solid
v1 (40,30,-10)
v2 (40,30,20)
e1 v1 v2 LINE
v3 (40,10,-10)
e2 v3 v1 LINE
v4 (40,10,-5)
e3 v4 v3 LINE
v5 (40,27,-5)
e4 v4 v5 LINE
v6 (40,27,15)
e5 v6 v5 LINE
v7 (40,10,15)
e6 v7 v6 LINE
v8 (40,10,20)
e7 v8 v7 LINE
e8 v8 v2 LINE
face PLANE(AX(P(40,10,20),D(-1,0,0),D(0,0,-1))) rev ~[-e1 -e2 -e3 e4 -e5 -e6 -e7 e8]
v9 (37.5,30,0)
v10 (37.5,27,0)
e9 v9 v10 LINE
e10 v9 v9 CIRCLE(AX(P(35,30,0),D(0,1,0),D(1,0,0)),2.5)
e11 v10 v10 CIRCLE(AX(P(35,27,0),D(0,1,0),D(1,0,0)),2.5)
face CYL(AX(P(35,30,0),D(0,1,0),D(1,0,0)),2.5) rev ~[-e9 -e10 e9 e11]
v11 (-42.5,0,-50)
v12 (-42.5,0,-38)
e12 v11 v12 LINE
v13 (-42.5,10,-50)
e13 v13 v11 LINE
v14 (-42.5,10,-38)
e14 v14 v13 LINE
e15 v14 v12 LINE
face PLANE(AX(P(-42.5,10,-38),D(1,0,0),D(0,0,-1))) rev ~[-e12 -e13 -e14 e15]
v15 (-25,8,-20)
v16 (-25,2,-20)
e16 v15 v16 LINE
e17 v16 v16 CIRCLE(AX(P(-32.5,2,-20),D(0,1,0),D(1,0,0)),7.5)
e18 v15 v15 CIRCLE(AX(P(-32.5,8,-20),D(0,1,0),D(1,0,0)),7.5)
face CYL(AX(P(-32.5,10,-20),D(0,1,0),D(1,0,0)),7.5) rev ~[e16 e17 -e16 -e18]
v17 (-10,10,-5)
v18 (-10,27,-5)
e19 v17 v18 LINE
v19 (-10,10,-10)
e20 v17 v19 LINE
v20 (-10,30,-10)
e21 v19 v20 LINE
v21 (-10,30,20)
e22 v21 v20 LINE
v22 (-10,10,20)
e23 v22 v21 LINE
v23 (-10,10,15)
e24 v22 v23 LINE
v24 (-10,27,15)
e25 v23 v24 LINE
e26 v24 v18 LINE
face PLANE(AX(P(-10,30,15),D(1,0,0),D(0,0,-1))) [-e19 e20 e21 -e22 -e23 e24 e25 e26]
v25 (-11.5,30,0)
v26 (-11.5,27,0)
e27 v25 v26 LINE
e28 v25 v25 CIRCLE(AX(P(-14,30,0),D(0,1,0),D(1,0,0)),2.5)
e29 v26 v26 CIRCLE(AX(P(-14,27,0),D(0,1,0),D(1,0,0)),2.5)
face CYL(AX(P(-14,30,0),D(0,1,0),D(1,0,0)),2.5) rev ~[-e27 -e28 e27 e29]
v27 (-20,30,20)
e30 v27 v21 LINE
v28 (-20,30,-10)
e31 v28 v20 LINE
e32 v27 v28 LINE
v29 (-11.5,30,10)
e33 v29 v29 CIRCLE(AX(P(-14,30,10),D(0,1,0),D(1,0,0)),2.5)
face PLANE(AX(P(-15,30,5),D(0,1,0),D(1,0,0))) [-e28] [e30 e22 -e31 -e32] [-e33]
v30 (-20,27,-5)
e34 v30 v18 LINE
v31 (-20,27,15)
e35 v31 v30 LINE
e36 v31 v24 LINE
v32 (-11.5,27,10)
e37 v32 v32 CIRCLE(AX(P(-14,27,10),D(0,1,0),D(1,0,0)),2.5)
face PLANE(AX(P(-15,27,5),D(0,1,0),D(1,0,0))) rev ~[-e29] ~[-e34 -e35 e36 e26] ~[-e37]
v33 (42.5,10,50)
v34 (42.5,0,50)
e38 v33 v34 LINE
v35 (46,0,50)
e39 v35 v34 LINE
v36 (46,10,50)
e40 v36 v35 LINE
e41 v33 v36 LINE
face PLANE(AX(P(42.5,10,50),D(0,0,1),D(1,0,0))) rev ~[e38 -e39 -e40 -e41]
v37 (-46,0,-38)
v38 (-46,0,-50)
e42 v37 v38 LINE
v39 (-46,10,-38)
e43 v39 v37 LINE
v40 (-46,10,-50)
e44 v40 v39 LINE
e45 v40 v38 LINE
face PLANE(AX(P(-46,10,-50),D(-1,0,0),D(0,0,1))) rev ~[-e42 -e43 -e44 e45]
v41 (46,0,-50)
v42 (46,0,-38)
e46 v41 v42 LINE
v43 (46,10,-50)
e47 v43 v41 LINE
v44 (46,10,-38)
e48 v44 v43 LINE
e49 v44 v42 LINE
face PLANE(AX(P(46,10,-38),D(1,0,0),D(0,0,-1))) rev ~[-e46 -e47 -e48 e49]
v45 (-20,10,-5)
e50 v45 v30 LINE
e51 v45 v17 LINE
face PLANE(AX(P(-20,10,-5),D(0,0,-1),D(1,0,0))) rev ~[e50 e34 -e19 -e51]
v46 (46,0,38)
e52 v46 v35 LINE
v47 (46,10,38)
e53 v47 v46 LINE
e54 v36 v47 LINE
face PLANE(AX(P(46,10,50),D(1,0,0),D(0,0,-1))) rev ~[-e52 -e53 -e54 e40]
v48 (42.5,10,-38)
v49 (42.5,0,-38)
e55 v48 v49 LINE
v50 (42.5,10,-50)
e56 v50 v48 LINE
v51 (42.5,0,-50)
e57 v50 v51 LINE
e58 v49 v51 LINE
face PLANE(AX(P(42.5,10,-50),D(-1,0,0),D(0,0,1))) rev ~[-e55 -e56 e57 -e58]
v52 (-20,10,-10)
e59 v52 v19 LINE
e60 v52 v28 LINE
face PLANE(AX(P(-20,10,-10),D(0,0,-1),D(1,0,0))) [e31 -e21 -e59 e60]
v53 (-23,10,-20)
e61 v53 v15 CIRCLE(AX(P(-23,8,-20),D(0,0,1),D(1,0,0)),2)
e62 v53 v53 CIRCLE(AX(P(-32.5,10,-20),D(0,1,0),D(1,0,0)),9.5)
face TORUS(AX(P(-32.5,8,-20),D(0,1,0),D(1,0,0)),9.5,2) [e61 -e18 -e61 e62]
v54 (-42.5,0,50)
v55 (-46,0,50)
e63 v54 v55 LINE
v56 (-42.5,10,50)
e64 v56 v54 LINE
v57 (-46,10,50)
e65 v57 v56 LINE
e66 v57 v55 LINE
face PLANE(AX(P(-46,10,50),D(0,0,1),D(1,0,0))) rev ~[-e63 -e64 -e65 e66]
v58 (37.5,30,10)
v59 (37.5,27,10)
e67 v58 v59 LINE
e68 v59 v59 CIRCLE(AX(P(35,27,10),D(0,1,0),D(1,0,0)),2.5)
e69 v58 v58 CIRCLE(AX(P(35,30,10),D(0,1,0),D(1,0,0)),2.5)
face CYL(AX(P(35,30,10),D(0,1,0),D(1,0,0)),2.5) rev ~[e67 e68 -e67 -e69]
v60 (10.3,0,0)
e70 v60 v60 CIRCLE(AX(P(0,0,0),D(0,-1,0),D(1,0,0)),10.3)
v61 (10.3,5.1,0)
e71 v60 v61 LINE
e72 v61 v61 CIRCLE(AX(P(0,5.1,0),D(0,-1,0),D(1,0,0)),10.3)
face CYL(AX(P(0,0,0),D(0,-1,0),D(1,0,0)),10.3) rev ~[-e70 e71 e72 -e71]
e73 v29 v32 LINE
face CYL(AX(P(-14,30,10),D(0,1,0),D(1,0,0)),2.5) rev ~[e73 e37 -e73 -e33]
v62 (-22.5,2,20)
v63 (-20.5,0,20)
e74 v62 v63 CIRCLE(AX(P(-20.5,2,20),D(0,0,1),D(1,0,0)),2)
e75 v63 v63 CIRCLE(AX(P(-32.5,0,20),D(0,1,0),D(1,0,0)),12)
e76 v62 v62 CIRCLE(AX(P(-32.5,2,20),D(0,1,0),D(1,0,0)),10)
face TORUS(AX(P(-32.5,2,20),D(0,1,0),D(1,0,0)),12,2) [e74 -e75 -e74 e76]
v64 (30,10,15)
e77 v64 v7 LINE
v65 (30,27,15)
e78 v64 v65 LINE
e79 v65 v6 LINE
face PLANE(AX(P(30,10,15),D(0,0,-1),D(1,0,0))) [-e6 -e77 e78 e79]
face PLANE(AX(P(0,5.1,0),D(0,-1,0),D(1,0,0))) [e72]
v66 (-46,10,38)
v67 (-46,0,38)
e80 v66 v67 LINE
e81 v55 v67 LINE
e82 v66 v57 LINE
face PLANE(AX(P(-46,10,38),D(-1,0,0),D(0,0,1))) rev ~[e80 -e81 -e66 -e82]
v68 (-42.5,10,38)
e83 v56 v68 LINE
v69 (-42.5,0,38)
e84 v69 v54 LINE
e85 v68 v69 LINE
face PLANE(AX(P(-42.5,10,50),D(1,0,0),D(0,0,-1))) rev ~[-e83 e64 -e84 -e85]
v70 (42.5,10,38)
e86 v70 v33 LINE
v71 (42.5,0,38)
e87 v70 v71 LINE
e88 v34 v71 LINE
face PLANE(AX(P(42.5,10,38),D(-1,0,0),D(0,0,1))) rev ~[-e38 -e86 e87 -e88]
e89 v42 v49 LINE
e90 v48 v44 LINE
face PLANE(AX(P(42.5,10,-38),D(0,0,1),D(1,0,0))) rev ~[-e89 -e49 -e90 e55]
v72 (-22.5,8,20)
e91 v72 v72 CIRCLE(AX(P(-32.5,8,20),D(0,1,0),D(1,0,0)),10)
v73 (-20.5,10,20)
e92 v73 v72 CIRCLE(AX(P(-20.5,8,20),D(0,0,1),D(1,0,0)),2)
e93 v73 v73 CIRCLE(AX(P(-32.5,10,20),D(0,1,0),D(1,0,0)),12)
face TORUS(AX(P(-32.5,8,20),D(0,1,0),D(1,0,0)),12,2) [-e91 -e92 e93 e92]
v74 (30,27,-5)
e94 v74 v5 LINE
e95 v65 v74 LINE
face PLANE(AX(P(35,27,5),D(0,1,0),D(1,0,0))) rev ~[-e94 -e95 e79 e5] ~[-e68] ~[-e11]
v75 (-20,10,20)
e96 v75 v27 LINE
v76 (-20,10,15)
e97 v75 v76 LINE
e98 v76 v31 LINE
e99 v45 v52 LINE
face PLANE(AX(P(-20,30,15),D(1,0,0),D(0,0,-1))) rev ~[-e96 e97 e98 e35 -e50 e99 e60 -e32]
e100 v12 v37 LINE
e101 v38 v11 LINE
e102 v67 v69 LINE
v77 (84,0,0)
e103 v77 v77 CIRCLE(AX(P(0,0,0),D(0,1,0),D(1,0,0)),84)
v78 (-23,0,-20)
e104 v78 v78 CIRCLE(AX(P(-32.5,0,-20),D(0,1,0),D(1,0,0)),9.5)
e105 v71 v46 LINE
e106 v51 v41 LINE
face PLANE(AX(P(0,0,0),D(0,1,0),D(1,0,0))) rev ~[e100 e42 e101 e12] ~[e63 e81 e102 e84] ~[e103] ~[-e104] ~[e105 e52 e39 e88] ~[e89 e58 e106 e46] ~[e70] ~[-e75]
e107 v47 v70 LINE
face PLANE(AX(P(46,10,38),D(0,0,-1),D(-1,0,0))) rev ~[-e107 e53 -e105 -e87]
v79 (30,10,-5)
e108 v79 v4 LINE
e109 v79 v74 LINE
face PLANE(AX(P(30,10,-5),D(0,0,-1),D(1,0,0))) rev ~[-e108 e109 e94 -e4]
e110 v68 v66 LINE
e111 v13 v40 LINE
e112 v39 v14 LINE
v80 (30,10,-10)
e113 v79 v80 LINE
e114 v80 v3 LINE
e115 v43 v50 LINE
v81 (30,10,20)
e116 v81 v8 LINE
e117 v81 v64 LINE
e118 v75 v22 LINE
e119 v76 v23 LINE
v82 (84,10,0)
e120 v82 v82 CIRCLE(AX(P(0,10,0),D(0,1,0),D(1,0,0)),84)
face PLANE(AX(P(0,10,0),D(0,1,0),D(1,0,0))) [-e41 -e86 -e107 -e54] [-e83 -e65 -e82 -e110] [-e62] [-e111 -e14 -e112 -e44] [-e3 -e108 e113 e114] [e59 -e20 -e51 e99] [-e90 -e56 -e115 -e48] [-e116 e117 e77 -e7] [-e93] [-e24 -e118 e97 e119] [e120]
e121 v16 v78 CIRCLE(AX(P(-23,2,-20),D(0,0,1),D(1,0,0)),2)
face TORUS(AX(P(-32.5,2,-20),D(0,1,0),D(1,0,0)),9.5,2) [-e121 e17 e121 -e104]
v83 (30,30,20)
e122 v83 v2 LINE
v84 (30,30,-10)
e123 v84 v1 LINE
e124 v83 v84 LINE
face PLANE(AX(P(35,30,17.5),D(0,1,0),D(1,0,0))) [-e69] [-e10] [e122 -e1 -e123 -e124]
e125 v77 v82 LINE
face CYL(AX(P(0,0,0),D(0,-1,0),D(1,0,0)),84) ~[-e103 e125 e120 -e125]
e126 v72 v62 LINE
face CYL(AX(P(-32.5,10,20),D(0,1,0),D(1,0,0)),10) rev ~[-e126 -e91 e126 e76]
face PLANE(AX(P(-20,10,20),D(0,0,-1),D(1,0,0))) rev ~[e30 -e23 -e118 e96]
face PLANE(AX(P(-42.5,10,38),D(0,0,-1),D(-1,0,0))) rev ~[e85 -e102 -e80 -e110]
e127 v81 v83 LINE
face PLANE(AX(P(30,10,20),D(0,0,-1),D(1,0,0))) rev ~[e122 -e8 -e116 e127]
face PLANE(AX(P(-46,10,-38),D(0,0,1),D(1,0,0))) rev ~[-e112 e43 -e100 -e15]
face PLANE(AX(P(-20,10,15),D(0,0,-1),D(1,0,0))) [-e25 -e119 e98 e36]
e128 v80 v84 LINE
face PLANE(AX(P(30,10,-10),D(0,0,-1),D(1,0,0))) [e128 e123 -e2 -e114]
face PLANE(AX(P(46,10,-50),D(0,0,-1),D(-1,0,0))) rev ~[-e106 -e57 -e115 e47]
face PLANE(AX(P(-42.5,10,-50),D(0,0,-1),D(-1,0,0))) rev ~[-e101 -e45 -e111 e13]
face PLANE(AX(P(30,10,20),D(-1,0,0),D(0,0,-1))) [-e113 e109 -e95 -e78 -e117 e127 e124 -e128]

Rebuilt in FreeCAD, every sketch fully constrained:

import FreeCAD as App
import Part
import Sketcher
Q = App.Units.Quantity


def edges_at(feature, points):
    """Names of the edges that pass closest to the given points."""
    edges = feature.Shape.Edges
    near = lambda p: min(range(len(edges)), key=lambda i: edges[i].distToShape(Part.Vertex(*p))[0])
    return sorted({f"Edge{near(p) + 1}" for p in points})


def add_polygon(sketch, points):
    """Adds a closed chain of lines whose ends are joined by coincident constraints."""
    first, n = sketch.GeometryCount, len(points)
    for a, b in zip(points, points[1:] + points[:1]):
        sketch.addGeometry(Part.LineSegment(App.Vector(*a, 0), App.Vector(*b, 0)), False)
    for i in range(n):
        sketch.addConstraint(Sketcher.Constraint("Coincident", first + i, 2, first + (i + 1) % n, 1))

doc = App.newDocument("Part")
body = doc.addObject("PartDesign::Body", "Body")

sketch1 = body.newObject("Sketcher::SketchObject", "Sketch")
sketch1.AttachmentSupport = (doc.getObject("XZ_Plane"), [""])
sketch1.MapMode = "FlatFace"
sketch1.addGeometry(Part.Circle(App.Vector(0, 0, 0), App.Vector(0, 0, 1), 84), False)
sketch1.addConstraint(Sketcher.Constraint("Coincident", 0, 3, -1, 1))
sketch1.addConstraint(Sketcher.Constraint("Diameter", 0, Q("168 mm")))
pad1 = body.newObject("PartDesign::Pad", "Pad")
pad1.Profile = sketch1
pad1.Length = 10
pad1.Reversed = True

sketch2 = body.newObject("Sketcher::SketchObject", "Sketch001")
sketch2.AttachmentSupport = (doc.getObject("XZ_Plane"), [""])
sketch2.MapMode = "FlatFace"
sketch2.AttachmentOffset = App.Placement(App.Vector(0, 0, -10), App.Rotation())
add_polygon(sketch2, [(-20, -10), (-20, -5), (-10, -5), (-10, -10)])
add_polygon(sketch2, [(-20, 15), (-20, 20), (-10, 20), (-10, 15)])
add_polygon(sketch2, [(30, 15), (30, 20), (40, 20), (40, 15)])
add_polygon(sketch2, [(30, -10), (30, -5), (40, -5), (40, -10)])
sketch2.addConstraint(Sketcher.Constraint("Vertical", 0))
sketch2.addConstraint(Sketcher.Constraint("Horizontal", 1))
sketch2.addConstraint(Sketcher.Constraint("Vertical", 2))
sketch2.addConstraint(Sketcher.Constraint("Horizontal", 3))
sketch2.addConstraint(Sketcher.Constraint("Vertical", 4))
sketch2.addConstraint(Sketcher.Constraint("Horizontal", 5))
sketch2.addConstraint(Sketcher.Constraint("Vertical", 6))
sketch2.addConstraint(Sketcher.Constraint("Horizontal", 7))
sketch2.addConstraint(Sketcher.Constraint("Vertical", 8))
sketch2.addConstraint(Sketcher.Constraint("Horizontal", 9))
sketch2.addConstraint(Sketcher.Constraint("Vertical", 10))
sketch2.addConstraint(Sketcher.Constraint("Horizontal", 11))
sketch2.addConstraint(Sketcher.Constraint("Vertical", 12))
sketch2.addConstraint(Sketcher.Constraint("Horizontal", 13))
sketch2.addConstraint(Sketcher.Constraint("Vertical", 14))
sketch2.addConstraint(Sketcher.Constraint("Horizontal", 15))
sketch2.addConstraint(Sketcher.Constraint("Horizontal", 5, 2, 8, 2))
sketch2.addConstraint(Sketcher.Constraint("Horizontal", 7, 2, 10, 2))
sketch2.addConstraint(Sketcher.Constraint("Horizontal", 1, 2, 12, 2))
sketch2.addConstraint(Sketcher.Constraint("Horizontal", 3, 2, 14, 2))
sketch2.addConstraint(Sketcher.Constraint("Vertical", 3, 2, 4, 2))
sketch2.addConstraint(Sketcher.Constraint("Vertical", 2, 2, 5, 2))
sketch2.addConstraint(Sketcher.Constraint("Vertical", 11, 2, 12, 2))
sketch2.addConstraint(Sketcher.Constraint("Vertical", 10, 2, 13, 2))
sketch2.addConstraint(Sketcher.Constraint("Equal", 7, 9))
sketch2.addConstraint(Sketcher.Constraint("Equal", 2, 4))
sketch2.addConstraint(Sketcher.Constraint("DistanceX", 1, 1, 1, 2, Q("10 mm")))
sketch2.addConstraint(Sketcher.Constraint("DistanceY", 0, 1, 0, 2, Q("5 mm")))
sketch2.addConstraint(Sketcher.Constraint("DistanceX", 0, 2, -1, 1, Q("20 mm")))
sketch2.addConstraint(Sketcher.Constraint("DistanceY", 0, 2, -1, 1, Q("5 mm")))
sketch2.addConstraint(Sketcher.Constraint("DistanceY", -1, 1, 4, 2, Q("20 mm")))
sketch2.addConstraint(Sketcher.Constraint("DistanceX", -1, 1, 8, 2, Q("30 mm")))
pad2 = body.newObject("PartDesign::Pad", "Pad001")
pad2.Profile = sketch2
pad2.Length = 20
pad2.Reversed = True

sketch3 = body.newObject("Sketcher::SketchObject", "Sketch002")
sketch3.AttachmentSupport = (doc.getObject("XZ_Plane"), [""])
sketch3.MapMode = "FlatFace"
sketch3.AttachmentOffset = App.Placement(App.Vector(0, 0, -30), App.Rotation())
add_polygon(sketch3, [(-20, -5), (-20, 15), (-10, 15), (-10, -5)])
sketch3.addGeometry(Part.Circle(App.Vector(-14, 10, 0), App.Vector(0, 0, 1), 2.5), False)
sketch3.addGeometry(Part.Circle(App.Vector(-14, 0, 0), App.Vector(0, 0, 1), 2.5), False)
add_polygon(sketch3, [(30, -5), (30, 15), (40, 15), (40, -5)])
sketch3.addGeometry(Part.Circle(App.Vector(35, 10, 0), App.Vector(0, 0, 1), 2.5), False)
sketch3.addGeometry(Part.Circle(App.Vector(35, 0, 0), App.Vector(0, 0, 1), 2.5), False)
sketch3.addConstraint(Sketcher.Constraint("Vertical", 0))
sketch3.addConstraint(Sketcher.Constraint("Horizontal", 1))
sketch3.addConstraint(Sketcher.Constraint("Vertical", 2))
sketch3.addConstraint(Sketcher.Constraint("Horizontal", 3))
sketch3.addConstraint(Sketcher.Constraint("Vertical", 6))
sketch3.addConstraint(Sketcher.Constraint("Horizontal", 7))
sketch3.addConstraint(Sketcher.Constraint("Vertical", 8))
sketch3.addConstraint(Sketcher.Constraint("Horizontal", 9))
sketch3.addConstraint(Sketcher.Constraint("Equal", 4, 5))
sketch3.addConstraint(Sketcher.Constraint("Equal", 5, 10))
sketch3.addConstraint(Sketcher.Constraint("Equal", 10, 11))
sketch3.addConstraint(Sketcher.Constraint("PointOnObject", 5, 3, -1))
sketch3.addConstraint(Sketcher.Constraint("PointOnObject", 11, 3, -1))
sketch3.addConstraint(Sketcher.Constraint("Horizontal", 4, 3, 10, 3))
sketch3.addConstraint(Sketcher.Constraint("Horizontal", 1, 2, 6, 2))
sketch3.addConstraint(Sketcher.Constraint("Horizontal", 3, 2, 8, 2))
sketch3.addConstraint(Sketcher.Constraint("Vertical", 4, 3, 5, 3))
sketch3.addConstraint(Sketcher.Constraint("Vertical", 10, 3, 11, 3))
sketch3.addConstraint(Sketcher.Constraint("Equal", 3, 7))
sketch3.addConstraint(Sketcher.Constraint("Diameter", 4, Q("5 mm")))
sketch3.addConstraint(Sketcher.Constraint("DistanceX", 1, 1, 1, 2, Q("10 mm")))
sketch3.addConstraint(Sketcher.Constraint("DistanceY", 0, 1, 0, 2, Q("20 mm")))
sketch3.addConstraint(Sketcher.Constraint("DistanceX", 4, 3, -1, 1, Q("14 mm")))
sketch3.addConstraint(Sketcher.Constraint("DistanceY", -1, 1, 4, 3, Q("10 mm")))
sketch3.addConstraint(Sketcher.Constraint("DistanceX", -1, 1, 10, 3, Q("35 mm")))
sketch3.addConstraint(Sketcher.Constraint("DistanceX", 0, 2, -1, 1, Q("20 mm")))
sketch3.addConstraint(Sketcher.Constraint("DistanceY", -1, 1, 0, 2, Q("15 mm")))
sketch3.addConstraint(Sketcher.Constraint("DistanceX", -1, 1, 6, 2, Q("30 mm")))
pad3 = body.newObject("PartDesign::Pad", "Pad002")
pad3.Profile = sketch3
pad3.Length = 3

sketch4 = body.newObject("Sketcher::SketchObject", "Sketch003")
sketch4.AttachmentSupport = (doc.getObject("XZ_Plane"), [""])
sketch4.MapMode = "FlatFace"
sketch4.addGeometry(Part.Circle(App.Vector(0, 0, 0), App.Vector(0, 0, 1), 10), False)
sketch4.addConstraint(Sketcher.Constraint("Coincident", 0, 3, -1, 1))
sketch4.addConstraint(Sketcher.Constraint("Diameter", 0, Q("20.6 mm")))
pocket1 = body.newObject("PartDesign::Pocket", "Pocket")
pocket1.Profile = sketch4
pocket1.Length = 5.1

sketch5 = body.newObject("Sketcher::SketchObject", "Sketch004")
sketch5.AttachmentSupport = (doc.getObject("XZ_Plane"), [""])
sketch5.MapMode = "FlatFace"
sketch5.AttachmentOffset = App.Placement(App.Vector(0, 0, -10), App.Rotation())
sketch5.addGeometry(Part.Circle(App.Vector(-32, -20, 0), App.Vector(0, 0, 1), 8), False)
sketch5.addConstraint(Sketcher.Constraint("Diameter", 0, Q("15 mm")))
sketch5.addConstraint(Sketcher.Constraint("DistanceY", 0, 3, -1, 1, Q("20 mm")))
sketch5.addConstraint(Sketcher.Constraint("DistanceX", 0, 3, -1, 1, Q("32.5 mm")))
pocket2 = body.newObject("PartDesign::Pocket", "Pocket001")
pocket2.Profile = sketch5
pocket2.Type = "UpToFirst"
pocket2.Reversed = True

sketch6 = body.newObject("Sketcher::SketchObject", "Sketch005")
sketch6.AttachmentSupport = (doc.getObject("XZ_Plane"), [""])
sketch6.MapMode = "FlatFace"
sketch6.AttachmentOffset = App.Placement(App.Vector(0, 0, -10), App.Rotation())
sketch6.addGeometry(Part.Circle(App.Vector(-32, 20, 0), App.Vector(0, 0, 1), 10), False)
sketch6.addConstraint(Sketcher.Constraint("Diameter", 0, Q("20 mm")))
sketch6.addConstraint(Sketcher.Constraint("DistanceY", -1, 1, 0, 3, Q("20 mm")))
sketch6.addConstraint(Sketcher.Constraint("DistanceX", 0, 3, -1, 1, Q("32.5 mm")))
pocket3 = body.newObject("PartDesign::Pocket", "Pocket002")
pocket3.Profile = sketch6
pocket3.Type = "UpToFirst"
pocket3.Reversed = True

sketch7 = body.newObject("Sketcher::SketchObject", "Sketch006")
sketch7.AttachmentSupport = (doc.getObject("XZ_Plane"), [""])
sketch7.MapMode = "FlatFace"
sketch7.AttachmentOffset = App.Placement(App.Vector(0, 0, -10), App.Rotation())
add_polygon(sketch7, [(-42.5, -38), (-42.5, -50), (-46, -50), (-46, -38)])
sketch7.addConstraint(Sketcher.Constraint("Vertical", 0))
sketch7.addConstraint(Sketcher.Constraint("Horizontal", 1))
sketch7.addConstraint(Sketcher.Constraint("Vertical", 2))
sketch7.addConstraint(Sketcher.Constraint("Horizontal", 3))
sketch7.addConstraint(Sketcher.Constraint("DistanceY", 0, 2, 0, 1, Q("12 mm")))
sketch7.addConstraint(Sketcher.Constraint("DistanceX", 1, 2, 1, 1, Q("3.5 mm")))
sketch7.addConstraint(Sketcher.Constraint("DistanceY", 0, 2, -1, 1, Q("50 mm")))
sketch7.addConstraint(Sketcher.Constraint("DistanceX", 1, 2, -1, 1, Q("46 mm")))
pocket4 = body.newObject("PartDesign::Pocket", "Pocket003")
pocket4.Profile = sketch7
pocket4.Type = "UpToFirst"
pocket4.Reversed = True

sketch8 = body.newObject("Sketcher::SketchObject", "Sketch007")
sketch8.AttachmentSupport = (doc.getObject("XZ_Plane"), [""])
sketch8.MapMode = "FlatFace"
sketch8.AttachmentOffset = App.Placement(App.Vector(0, 0, -10), App.Rotation())
add_polygon(sketch8, [(42.5, -50), (42.5, -38), (46, -38), (46, -50)])
sketch8.addConstraint(Sketcher.Constraint("Vertical", 0))
sketch8.addConstraint(Sketcher.Constraint("Horizontal", 1))
sketch8.addConstraint(Sketcher.Constraint("Vertical", 2))
sketch8.addConstraint(Sketcher.Constraint("Horizontal", 3))
sketch8.addConstraint(Sketcher.Constraint("DistanceY", 0, 1, 0, 2, Q("12 mm")))
sketch8.addConstraint(Sketcher.Constraint("DistanceX", 1, 1, 1, 2, Q("3.5 mm")))
sketch8.addConstraint(Sketcher.Constraint("DistanceY", 0, 2, -1, 1, Q("38 mm")))
sketch8.addConstraint(Sketcher.Constraint("DistanceX", -1, 1, 1, 2, Q("46 mm")))
pocket5 = body.newObject("PartDesign::Pocket", "Pocket004")
pocket5.Profile = sketch8
pocket5.Type = "UpToFirst"
pocket5.Reversed = True

sketch9 = body.newObject("Sketcher::SketchObject", "Sketch008")
sketch9.AttachmentSupport = (doc.getObject("XZ_Plane"), [""])
sketch9.MapMode = "FlatFace"
sketch9.AttachmentOffset = App.Placement(App.Vector(0, 0, -10), App.Rotation())
add_polygon(sketch9, [(46, 38), (42.5, 38), (42.5, 50), (46, 50)])
sketch9.addConstraint(Sketcher.Constraint("Horizontal", 0))
sketch9.addConstraint(Sketcher.Constraint("Vertical", 1))
sketch9.addConstraint(Sketcher.Constraint("Horizontal", 2))
sketch9.addConstraint(Sketcher.Constraint("Vertical", 3))
sketch9.addConstraint(Sketcher.Constraint("DistanceY", 1, 1, 1, 2, Q("12 mm")))
sketch9.addConstraint(Sketcher.Constraint("DistanceX", 0, 2, 0, 1, Q("3.5 mm")))
sketch9.addConstraint(Sketcher.Constraint("DistanceY", -1, 1, 0, 2, Q("38 mm")))
sketch9.addConstraint(Sketcher.Constraint("DistanceX", -1, 1, 2, 2, Q("46 mm")))
pocket6 = body.newObject("PartDesign::Pocket", "Pocket005")
pocket6.Profile = sketch9
pocket6.Type = "UpToFirst"
pocket6.Reversed = True

sketch10 = body.newObject("Sketcher::SketchObject", "Sketch009")
sketch10.AttachmentSupport = (doc.getObject("XZ_Plane"), [""])
sketch10.MapMode = "FlatFace"
sketch10.AttachmentOffset = App.Placement(App.Vector(0, 0, -10), App.Rotation())
add_polygon(sketch10, [(-42.5, 38), (-46, 38), (-46, 50), (-42.5, 50)])
sketch10.addConstraint(Sketcher.Constraint("Horizontal", 0))
sketch10.addConstraint(Sketcher.Constraint("Vertical", 1))
sketch10.addConstraint(Sketcher.Constraint("Horizontal", 2))
sketch10.addConstraint(Sketcher.Constraint("Vertical", 3))
sketch10.addConstraint(Sketcher.Constraint("DistanceY", 1, 1, 1, 2, Q("12 mm")))
sketch10.addConstraint(Sketcher.Constraint("DistanceX", 0, 2, 0, 1, Q("3.5 mm")))
sketch10.addConstraint(Sketcher.Constraint("DistanceX", 0, 2, -1, 1, Q("46 mm")))
sketch10.addConstraint(Sketcher.Constraint("DistanceY", -1, 1, 0, 2, Q("38 mm")))
pocket7 = body.newObject("PartDesign::Pocket", "Pocket006")
pocket7.Profile = sketch10
pocket7.Type = "UpToFirst"
pocket7.Reversed = True
doc.recompute()

fillet = body.newObject("PartDesign::Fillet", "Fillet")
fillet.Base = (pocket7, edges_at(pocket7, [
    (-40, 10, -20),
    (-40, 0, -20),
    (-42.5, 10, 20),
    (-42.5, 0, 20),
]))
fillet.Radius = 2

doc.recompute()
